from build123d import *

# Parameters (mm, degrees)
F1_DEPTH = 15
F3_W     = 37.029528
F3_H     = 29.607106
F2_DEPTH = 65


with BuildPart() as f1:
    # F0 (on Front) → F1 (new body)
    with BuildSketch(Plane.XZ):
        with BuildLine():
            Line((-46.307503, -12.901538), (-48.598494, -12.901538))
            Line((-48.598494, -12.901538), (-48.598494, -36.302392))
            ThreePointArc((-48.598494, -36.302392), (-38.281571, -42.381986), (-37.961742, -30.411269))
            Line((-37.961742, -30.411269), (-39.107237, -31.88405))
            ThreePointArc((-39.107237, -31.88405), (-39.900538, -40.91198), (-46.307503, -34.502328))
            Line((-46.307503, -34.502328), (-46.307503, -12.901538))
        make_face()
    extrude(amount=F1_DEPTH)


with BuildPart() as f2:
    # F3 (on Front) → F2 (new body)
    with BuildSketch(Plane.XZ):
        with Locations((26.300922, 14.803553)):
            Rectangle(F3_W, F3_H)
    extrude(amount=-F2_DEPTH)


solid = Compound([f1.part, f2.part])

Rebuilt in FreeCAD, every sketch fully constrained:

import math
import FreeCAD as App
import Part
import Sketcher
from FreeCAD import Vector


def add_polygon(sketch, points):
    """Adds a closed chain of lines whose ends are joined by coincident constraints."""
    first, n = sketch.GeometryCount, len(points)
    for a, b in zip(points, points[1:] + points[:1]):
        sketch.addGeometry(Part.LineSegment(App.Vector(*a, 0), App.Vector(*b, 0)), False)
    for i in range(n):
        sketch.addConstraint(Sketcher.Constraint("Coincident", first + i, 2, first + (i + 1) % n, 1))

doc = App.newDocument("Part")
body = doc.addObject("PartDesign::Body", "Body")

# Sketch on XZ plane
sketch1 = body.newObject("Sketcher::SketchObject", "Sketch")
sketch1.AttachmentSupport = (doc.getObject("XZ_Plane"), [""])
sketch1.MapMode = "FlatFace"
sketch1.addGeometry([
    Part.LineSegment(Vector(-46.3, -12.9, 0), Vector(-48.6, -12.9, 0)),  # 0
    Part.LineSegment(Vector(-48.6, -12.9, 0), Vector(-48.6, -36.3, 0)),  # 1
    Part.ArcOfCircle(Part.Circle(Vector(-41.6, -36.3, 0), Vector(0, 0, 1), 6.9), math.radians(180), math.radians(418)),  # 2
    Part.LineSegment(Vector(-38, -30.4, 0), Vector(-39.1, -31.9, 0)),  # 3
    Part.ArcOfCircle(Part.Circle(Vector(-41.6, -36.2, 0), Vector(0, 0, 1), 5), math.radians(160), math.radians(420)),  # 4
    Part.LineSegment(Vector(-46.3, -34.5, 0), Vector(-46.3, -12.9, 0)),  # 5
], False)
sketch1.addConstraint([
    Sketcher.Constraint("Coincident", 0, 2, 1, 1),
    Sketcher.Constraint("Tangent", 1, 2, 2, 1),
    Sketcher.Constraint("Coincident", 2, 2, 3, 1),
    Sketcher.Constraint("Coincident", 3, 2, 4, 2),
    Sketcher.Constraint("Coincident", 4, 1, 5, 1),
    Sketcher.Constraint("Coincident", 5, 2, 0, 1),
    Sketcher.Constraint("Horizontal", 0),
    Sketcher.Constraint("Vertical", 1),
    Sketcher.Constraint("Vertical", 5),
    Sketcher.Constraint("Radius", 4, 5.0),
    Sketcher.Constraint("Radius", 2, 6.949764),
    Sketcher.Constraint("DistanceX", 0, 2, 0, 1, 2.290991),
    Sketcher.Constraint("DistanceY", 5, 1, 5, 2, 21.60079),
    Sketcher.Constraint("Distance", 3, 1.865809),
    Sketcher.Constraint("DistanceY", 1, 2, 1, 1, 23.400854),
    Sketcher.Constraint("DistanceX", 2, 3, -1, 1, 41.64873),
    Sketcher.Constraint("DistanceY", 1, 2, -1, 1, 36.302392),
    Sketcher.Constraint("DistanceY", 2, 2, -1, 1, 30.411269),
    Sketcher.Constraint("DistanceY", 3, 2, -1, 1, 31.88405),
])
pad1 = body.newObject("PartDesign::Pad", "Pad")
pad1.Profile = sketch1
pad1.Length = 15
body2 = doc.addObject("PartDesign::Body", "Body001")

# Sketch on XZ plane
sketch2 = body2.newObject("Sketcher::SketchObject", "Sketch001")
sketch2.AttachmentSupport = (doc.getObject("XZ_Plane001"), [""])
sketch2.MapMode = "FlatFace"
add_polygon(sketch2, [(8, 30), (8, 0), (45, 0), (45, 30)])  # lines 0-3
sketch2.addConstraint([
    Sketcher.Constraint("Vertical", 0),
    Sketcher.Constraint("Horizontal", 1),
    Sketcher.Constraint("Vertical", 2),
    Sketcher.Constraint("Horizontal", 3),
    Sketcher.Constraint("PointOnObject", 0, 2, -1),
    Sketcher.Constraint("DistanceX", 1, 1, 1, 2, 37.029528),
    Sketcher.Constraint("DistanceY", 0, 2, 0, 1, 29.607106),
    Sketcher.Constraint("DistanceX", -1, 1, 0, 2, 7.786158),
])
pad2 = body2.newObject("PartDesign::Pad", "Pad001")
pad2.Profile = sketch2
pad2.Length = 65
pad2.Reversed = True

doc.recompute()
